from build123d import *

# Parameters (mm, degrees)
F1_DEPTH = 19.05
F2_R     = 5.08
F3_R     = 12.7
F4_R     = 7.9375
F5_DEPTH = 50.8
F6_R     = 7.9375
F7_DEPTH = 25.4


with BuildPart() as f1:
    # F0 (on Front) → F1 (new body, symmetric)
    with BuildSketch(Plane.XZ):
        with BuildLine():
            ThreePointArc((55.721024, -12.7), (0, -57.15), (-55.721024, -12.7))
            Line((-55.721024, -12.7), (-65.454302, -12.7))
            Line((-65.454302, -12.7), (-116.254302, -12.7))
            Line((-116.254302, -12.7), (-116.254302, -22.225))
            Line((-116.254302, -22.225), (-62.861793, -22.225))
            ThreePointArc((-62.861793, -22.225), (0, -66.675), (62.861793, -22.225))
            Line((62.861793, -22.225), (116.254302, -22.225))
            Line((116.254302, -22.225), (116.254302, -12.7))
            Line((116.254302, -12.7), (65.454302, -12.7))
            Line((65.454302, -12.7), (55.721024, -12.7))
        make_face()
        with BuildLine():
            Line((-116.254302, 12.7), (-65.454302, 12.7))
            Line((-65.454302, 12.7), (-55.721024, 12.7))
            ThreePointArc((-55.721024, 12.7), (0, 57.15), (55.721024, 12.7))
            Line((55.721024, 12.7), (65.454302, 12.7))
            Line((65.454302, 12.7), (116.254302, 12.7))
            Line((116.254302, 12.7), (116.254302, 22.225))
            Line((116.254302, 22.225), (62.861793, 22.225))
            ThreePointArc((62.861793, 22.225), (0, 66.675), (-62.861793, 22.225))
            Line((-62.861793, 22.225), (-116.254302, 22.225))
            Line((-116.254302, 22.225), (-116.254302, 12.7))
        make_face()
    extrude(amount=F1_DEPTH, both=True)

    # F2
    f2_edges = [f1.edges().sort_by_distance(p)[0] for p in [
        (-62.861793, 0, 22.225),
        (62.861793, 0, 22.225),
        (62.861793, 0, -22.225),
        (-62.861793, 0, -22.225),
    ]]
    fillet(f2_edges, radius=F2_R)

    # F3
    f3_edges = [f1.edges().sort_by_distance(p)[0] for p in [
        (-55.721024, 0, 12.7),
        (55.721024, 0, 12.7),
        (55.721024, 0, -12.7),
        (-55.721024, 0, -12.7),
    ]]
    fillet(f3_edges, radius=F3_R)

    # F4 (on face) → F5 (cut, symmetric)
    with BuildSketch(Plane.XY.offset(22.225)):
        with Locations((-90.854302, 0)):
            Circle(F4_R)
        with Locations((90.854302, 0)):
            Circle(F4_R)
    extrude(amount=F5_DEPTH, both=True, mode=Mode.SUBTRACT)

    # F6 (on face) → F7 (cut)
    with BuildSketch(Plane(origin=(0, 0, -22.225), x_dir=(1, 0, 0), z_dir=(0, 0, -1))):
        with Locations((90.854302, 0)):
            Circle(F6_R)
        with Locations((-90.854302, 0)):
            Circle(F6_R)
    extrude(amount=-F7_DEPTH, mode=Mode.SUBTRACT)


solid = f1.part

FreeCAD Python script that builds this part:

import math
import FreeCAD as App
import Part
import Sketcher

V = App.Vector
Q = App.Units.Quantity


def edges_at(feature, points):
    """Names of the edges that pass closest to the given points."""
    edges = feature.Shape.Edges
    near = lambda p: min(range(len(edges)), key=lambda i: edges[i].distToShape(Part.Vertex(*p))[0])
    return sorted({f"Edge{near(p) + 1}" for p in points})

doc = App.newDocument("Part")
params = doc.addObject("Spreadsheet::Sheet", "Params")
for row, (alias, value) in enumerate([
    ("sketch1_radius", "2.25 in"),
    ("sketch1_radius2", "2.625 in"),
    ("sketch1_height", "0.375 in"),
    ("pad1_length", "1.5 in"),
    ("fillet_radius", "0.2 in"),
    ("fillet2_radius", "0.5 in"),
    ("sketch2_diameter", "0.625 in"),
    ("pocket1_length", "4 in"),
    ("sketch3_diameter", "0.625 in"),
    ("pocket2_length", "1 in"),
], start=1):
    params.set(f"A{row}", alias)
    params.set(f"B{row}", "=" + value)
    params.setAlias(f"B{row}", alias)

body = doc.addObject("PartDesign::Body", "Body")
body.AllowCompound = True

# Sketch on XZ plane
sketch1 = body.newObject("Sketcher::SketchObject", "Sketch")
sketch1.AttachmentSupport = (doc.getObject("XZ_Plane"), [""])
sketch1.MapMode = "FlatFace"
sketch1.addGeometry([
    Part.ArcOfCircle(Part.Circle(V(0, 0, 0), V(0, 0, 1), 57), math.radians(-167), math.radians(-13)),  # 0
    Part.LineSegment(V(-56, -13, 0), V(-116, -13, 0)),  # 1
    Part.LineSegment(V(-116, -13, 0), V(-116, -22, 0)),  # 2
    Part.LineSegment(V(-116, -22, 0), V(-63, -22, 0)),  # 3
    Part.ArcOfCircle(Part.Circle(V(0, 0, 0), V(0, 0, 1), 67), math.radians(-161), math.radians(-19)),  # 4
    Part.LineSegment(V(63, -22, 0), V(116, -22, 0)),  # 5
    Part.LineSegment(V(116, -22, 0), V(116, -13, 0)),  # 6
    Part.LineSegment(V(116, -13, 0), V(56, -13, 0)),  # 7
    Part.LineSegment(V(-116, 13, 0), V(-56, 13, 0)),  # 8
    Part.ArcOfCircle(Part.Circle(V(0, 0, 0), V(0, 0, 1), 57), math.radians(13), math.radians(167)),  # 9
    Part.LineSegment(V(56, 13, 0), V(116, 13, 0)),  # 10
    Part.LineSegment(V(116, 13, 0), V(116, 22, 0)),  # 11
    Part.LineSegment(V(116, 22, 0), V(63, 22, 0)),  # 12
    Part.ArcOfCircle(Part.Circle(V(0, 0, 0), V(0, 0, 1), 67), math.radians(19), math.radians(161)),  # 13
    Part.LineSegment(V(-63, 22, 0), V(-116, 22, 0)),  # 14
    Part.LineSegment(V(-116, 22, 0), V(-116, 13, 0)),  # 15
], False)
sketch1.addConstraint([
    Sketcher.Constraint("Coincident", 0, 1, 1, 1),
    Sketcher.Constraint("Coincident", 1, 2, 2, 1),
    Sketcher.Constraint("Coincident", 2, 2, 3, 1),
    Sketcher.Constraint("Coincident", 3, 2, 4, 1),
    Sketcher.Constraint("Coincident", 4, 2, 5, 1),
    Sketcher.Constraint("Coincident", 5, 2, 6, 1),
    Sketcher.Constraint("Coincident", 6, 2, 7, 1),
    Sketcher.Constraint("Coincident", 7, 2, 0, 2),
    Sketcher.Constraint("Coincident", 8, 2, 9, 2),
    Sketcher.Constraint("Coincident", 9, 1, 10, 1),
    Sketcher.Constraint("Coincident", 10, 2, 11, 1),
    Sketcher.Constraint("Coincident", 11, 2, 12, 1),
    Sketcher.Constraint("Coincident", 12, 2, 13, 1),
    Sketcher.Constraint("Coincident", 13, 2, 14, 1),
    Sketcher.Constraint("Coincident", 14, 2, 15, 1),
    Sketcher.Constraint("Coincident", 15, 2, 8, 1),
    Sketcher.Constraint("Horizontal", 1),
    Sketcher.Constraint("Vertical", 2),
    Sketcher.Constraint("Horizontal", 3),
    Sketcher.Constraint("Horizontal", 5),
    Sketcher.Constraint("Vertical", 6),
    Sketcher.Constraint("Horizontal", 7),
    Sketcher.Constraint("Horizontal", 8),
    Sketcher.Constraint("Horizontal", 10),
    Sketcher.Constraint("Vertical", 11),
    Sketcher.Constraint("Horizontal", 12),
    Sketcher.Constraint("Horizontal", 14),
    Sketcher.Constraint("Vertical", 15),
    Sketcher.Constraint("Coincident", 0, 3, -1, 1),
    Sketcher.Constraint("Coincident", 4, 3, -1, 1),
    Sketcher.Constraint("Coincident", 9, 3, -1, 1),
    Sketcher.Constraint("Coincident", 13, 3, -1, 1),
    Sketcher.Constraint("Equal", 0, 9),
    Sketcher.Constraint("Equal", 4, 13),
    Sketcher.Constraint("Symmetric", 1, 2, 10, 2, -1, 1),
    Sketcher.Constraint("Symmetric", 5, 2, 14, 2, -1, 1),
    Sketcher.Constraint("Symmetric", 2, 2, 5, 2, -2),
    Sketcher.Constraint("Horizontal", 1, 2, 6, 2),
    Sketcher.Constraint("Horizontal", 8, 2, 9, 1),
    Sketcher.Constraint("Horizontal", 12, 2, 13, 2),
    Sketcher.Constraint("Radius", 0, Q("2.25 in")),
    Sketcher.Constraint("Radius", 4, Q("2.625 in")),
    Sketcher.Constraint("DistanceY", 0, 1, 8, 2, Q("1 in")),
    Sketcher.Constraint("DistanceY", 2, 2, 2, 1, Q("0.375 in")),
    Sketcher.Constraint("DistanceX", 1, 2, 1, 1, Q("2.3831999 in")),
])
sketch1.setExpression("Constraints[40]", "Params.sketch1_radius")
sketch1.setExpression("Constraints[41]", "Params.sketch1_radius2")
sketch1.setExpression("Constraints[43]", "Params.sketch1_height")
pad1 = body.newObject("PartDesign::Pad", "Pad")
pad1.Profile = sketch1
pad1.setExpression("Length", "Params.pad1_length")
pad1.Midplane = True
doc.recompute()

fillet = body.newObject("PartDesign::Fillet", "Fillet")
fillet.Base = (pad1, edges_at(pad1, [
    (-62.862, 0, 22.225),
    (62.862, 0, 22.225),
    (62.862, 0, -22.225),
    (-62.862, 0, -22.225),
]))
fillet.setExpression("Radius", "Params.fillet_radius")
doc.recompute()

fillet2 = body.newObject("PartDesign::Fillet", "Fillet001")
fillet2.Base = (fillet, edges_at(fillet, [
    (-55.721, 0, 12.7),
    (55.721, 0, 12.7),
    (55.721, 0, -12.7),
    (-55.721, 0, -12.7),
]))
fillet2.setExpression("Radius", "Params.fillet2_radius")

# Sketch on XY plane
sketch2 = body.newObject("Sketcher::SketchObject", "Sketch001")
sketch2.AttachmentSupport = (doc.getObject("XY_Plane"), [""])
sketch2.MapMode = "FlatFace"
sketch2.AttachmentOffset = App.Placement(V(0, 0, 0.875 * 25.4), App.Rotation())
sketch2.addGeometry([
    Part.Circle(V(-91, 0, 0), V(0, 0, 1), 8),
    Part.Circle(V(91, 0, 0), V(0, 0, 1), 8),
], False)
sketch2.addConstraint([
    Sketcher.Constraint("Equal", 0, 1),
    Sketcher.Constraint("Symmetric", 0, 3, 1, 3, -1, 1),
    Sketcher.Constraint("PointOnObject", 0, 3, -1),
    Sketcher.Constraint("Diameter", 0, Q("0.625 in")),
    Sketcher.Constraint("DistanceX", 0, 3, -1, 1, 90.854302),
])
sketch2.setExpression("Constraints[3]", "Params.sketch2_diameter")
pocket1 = body.newObject("PartDesign::Pocket", "Pocket")
pocket1.Profile = sketch2
pocket1.setExpression("Length", "Params.pocket1_length")
pocket1.Midplane = True

# Sketch on XY plane
sketch3 = body.newObject("Sketcher::SketchObject", "Sketch002")
sketch3.AttachmentSupport = (doc.getObject("XY_Plane"), [""])
sketch3.MapMode = "FlatFace"
sketch3.AttachmentOffset = App.Placement(V(0, 0, -0.875 * 25.4), App.Rotation())
sketch3.addGeometry([
    Part.Circle(V(91, 0, 0), V(0, 0, 1), 8),
    Part.Circle(V(-91, 0, 0), V(0, 0, 1), 8),
], False)
sketch3.addConstraint([
    Sketcher.Constraint("Equal", 0, 1),
    Sketcher.Constraint("Symmetric", 0, 3, 1, 3, -1, 1),
    Sketcher.Constraint("PointOnObject", 0, 3, -1),
    Sketcher.Constraint("Diameter", 0, Q("0.625 in")),
    Sketcher.Constraint("DistanceX", -1, 1, 0, 3, 90.854302),
])
sketch3.setExpression("Constraints[3]", "Params.sketch3_diameter")
pocket2 = body.newObject("PartDesign::Pocket", "Pocket001")
pocket2.Profile = sketch3
pocket2.setExpression("Length", "Params.pocket2_length")
pocket2.Reversed = True

doc.recompute()
